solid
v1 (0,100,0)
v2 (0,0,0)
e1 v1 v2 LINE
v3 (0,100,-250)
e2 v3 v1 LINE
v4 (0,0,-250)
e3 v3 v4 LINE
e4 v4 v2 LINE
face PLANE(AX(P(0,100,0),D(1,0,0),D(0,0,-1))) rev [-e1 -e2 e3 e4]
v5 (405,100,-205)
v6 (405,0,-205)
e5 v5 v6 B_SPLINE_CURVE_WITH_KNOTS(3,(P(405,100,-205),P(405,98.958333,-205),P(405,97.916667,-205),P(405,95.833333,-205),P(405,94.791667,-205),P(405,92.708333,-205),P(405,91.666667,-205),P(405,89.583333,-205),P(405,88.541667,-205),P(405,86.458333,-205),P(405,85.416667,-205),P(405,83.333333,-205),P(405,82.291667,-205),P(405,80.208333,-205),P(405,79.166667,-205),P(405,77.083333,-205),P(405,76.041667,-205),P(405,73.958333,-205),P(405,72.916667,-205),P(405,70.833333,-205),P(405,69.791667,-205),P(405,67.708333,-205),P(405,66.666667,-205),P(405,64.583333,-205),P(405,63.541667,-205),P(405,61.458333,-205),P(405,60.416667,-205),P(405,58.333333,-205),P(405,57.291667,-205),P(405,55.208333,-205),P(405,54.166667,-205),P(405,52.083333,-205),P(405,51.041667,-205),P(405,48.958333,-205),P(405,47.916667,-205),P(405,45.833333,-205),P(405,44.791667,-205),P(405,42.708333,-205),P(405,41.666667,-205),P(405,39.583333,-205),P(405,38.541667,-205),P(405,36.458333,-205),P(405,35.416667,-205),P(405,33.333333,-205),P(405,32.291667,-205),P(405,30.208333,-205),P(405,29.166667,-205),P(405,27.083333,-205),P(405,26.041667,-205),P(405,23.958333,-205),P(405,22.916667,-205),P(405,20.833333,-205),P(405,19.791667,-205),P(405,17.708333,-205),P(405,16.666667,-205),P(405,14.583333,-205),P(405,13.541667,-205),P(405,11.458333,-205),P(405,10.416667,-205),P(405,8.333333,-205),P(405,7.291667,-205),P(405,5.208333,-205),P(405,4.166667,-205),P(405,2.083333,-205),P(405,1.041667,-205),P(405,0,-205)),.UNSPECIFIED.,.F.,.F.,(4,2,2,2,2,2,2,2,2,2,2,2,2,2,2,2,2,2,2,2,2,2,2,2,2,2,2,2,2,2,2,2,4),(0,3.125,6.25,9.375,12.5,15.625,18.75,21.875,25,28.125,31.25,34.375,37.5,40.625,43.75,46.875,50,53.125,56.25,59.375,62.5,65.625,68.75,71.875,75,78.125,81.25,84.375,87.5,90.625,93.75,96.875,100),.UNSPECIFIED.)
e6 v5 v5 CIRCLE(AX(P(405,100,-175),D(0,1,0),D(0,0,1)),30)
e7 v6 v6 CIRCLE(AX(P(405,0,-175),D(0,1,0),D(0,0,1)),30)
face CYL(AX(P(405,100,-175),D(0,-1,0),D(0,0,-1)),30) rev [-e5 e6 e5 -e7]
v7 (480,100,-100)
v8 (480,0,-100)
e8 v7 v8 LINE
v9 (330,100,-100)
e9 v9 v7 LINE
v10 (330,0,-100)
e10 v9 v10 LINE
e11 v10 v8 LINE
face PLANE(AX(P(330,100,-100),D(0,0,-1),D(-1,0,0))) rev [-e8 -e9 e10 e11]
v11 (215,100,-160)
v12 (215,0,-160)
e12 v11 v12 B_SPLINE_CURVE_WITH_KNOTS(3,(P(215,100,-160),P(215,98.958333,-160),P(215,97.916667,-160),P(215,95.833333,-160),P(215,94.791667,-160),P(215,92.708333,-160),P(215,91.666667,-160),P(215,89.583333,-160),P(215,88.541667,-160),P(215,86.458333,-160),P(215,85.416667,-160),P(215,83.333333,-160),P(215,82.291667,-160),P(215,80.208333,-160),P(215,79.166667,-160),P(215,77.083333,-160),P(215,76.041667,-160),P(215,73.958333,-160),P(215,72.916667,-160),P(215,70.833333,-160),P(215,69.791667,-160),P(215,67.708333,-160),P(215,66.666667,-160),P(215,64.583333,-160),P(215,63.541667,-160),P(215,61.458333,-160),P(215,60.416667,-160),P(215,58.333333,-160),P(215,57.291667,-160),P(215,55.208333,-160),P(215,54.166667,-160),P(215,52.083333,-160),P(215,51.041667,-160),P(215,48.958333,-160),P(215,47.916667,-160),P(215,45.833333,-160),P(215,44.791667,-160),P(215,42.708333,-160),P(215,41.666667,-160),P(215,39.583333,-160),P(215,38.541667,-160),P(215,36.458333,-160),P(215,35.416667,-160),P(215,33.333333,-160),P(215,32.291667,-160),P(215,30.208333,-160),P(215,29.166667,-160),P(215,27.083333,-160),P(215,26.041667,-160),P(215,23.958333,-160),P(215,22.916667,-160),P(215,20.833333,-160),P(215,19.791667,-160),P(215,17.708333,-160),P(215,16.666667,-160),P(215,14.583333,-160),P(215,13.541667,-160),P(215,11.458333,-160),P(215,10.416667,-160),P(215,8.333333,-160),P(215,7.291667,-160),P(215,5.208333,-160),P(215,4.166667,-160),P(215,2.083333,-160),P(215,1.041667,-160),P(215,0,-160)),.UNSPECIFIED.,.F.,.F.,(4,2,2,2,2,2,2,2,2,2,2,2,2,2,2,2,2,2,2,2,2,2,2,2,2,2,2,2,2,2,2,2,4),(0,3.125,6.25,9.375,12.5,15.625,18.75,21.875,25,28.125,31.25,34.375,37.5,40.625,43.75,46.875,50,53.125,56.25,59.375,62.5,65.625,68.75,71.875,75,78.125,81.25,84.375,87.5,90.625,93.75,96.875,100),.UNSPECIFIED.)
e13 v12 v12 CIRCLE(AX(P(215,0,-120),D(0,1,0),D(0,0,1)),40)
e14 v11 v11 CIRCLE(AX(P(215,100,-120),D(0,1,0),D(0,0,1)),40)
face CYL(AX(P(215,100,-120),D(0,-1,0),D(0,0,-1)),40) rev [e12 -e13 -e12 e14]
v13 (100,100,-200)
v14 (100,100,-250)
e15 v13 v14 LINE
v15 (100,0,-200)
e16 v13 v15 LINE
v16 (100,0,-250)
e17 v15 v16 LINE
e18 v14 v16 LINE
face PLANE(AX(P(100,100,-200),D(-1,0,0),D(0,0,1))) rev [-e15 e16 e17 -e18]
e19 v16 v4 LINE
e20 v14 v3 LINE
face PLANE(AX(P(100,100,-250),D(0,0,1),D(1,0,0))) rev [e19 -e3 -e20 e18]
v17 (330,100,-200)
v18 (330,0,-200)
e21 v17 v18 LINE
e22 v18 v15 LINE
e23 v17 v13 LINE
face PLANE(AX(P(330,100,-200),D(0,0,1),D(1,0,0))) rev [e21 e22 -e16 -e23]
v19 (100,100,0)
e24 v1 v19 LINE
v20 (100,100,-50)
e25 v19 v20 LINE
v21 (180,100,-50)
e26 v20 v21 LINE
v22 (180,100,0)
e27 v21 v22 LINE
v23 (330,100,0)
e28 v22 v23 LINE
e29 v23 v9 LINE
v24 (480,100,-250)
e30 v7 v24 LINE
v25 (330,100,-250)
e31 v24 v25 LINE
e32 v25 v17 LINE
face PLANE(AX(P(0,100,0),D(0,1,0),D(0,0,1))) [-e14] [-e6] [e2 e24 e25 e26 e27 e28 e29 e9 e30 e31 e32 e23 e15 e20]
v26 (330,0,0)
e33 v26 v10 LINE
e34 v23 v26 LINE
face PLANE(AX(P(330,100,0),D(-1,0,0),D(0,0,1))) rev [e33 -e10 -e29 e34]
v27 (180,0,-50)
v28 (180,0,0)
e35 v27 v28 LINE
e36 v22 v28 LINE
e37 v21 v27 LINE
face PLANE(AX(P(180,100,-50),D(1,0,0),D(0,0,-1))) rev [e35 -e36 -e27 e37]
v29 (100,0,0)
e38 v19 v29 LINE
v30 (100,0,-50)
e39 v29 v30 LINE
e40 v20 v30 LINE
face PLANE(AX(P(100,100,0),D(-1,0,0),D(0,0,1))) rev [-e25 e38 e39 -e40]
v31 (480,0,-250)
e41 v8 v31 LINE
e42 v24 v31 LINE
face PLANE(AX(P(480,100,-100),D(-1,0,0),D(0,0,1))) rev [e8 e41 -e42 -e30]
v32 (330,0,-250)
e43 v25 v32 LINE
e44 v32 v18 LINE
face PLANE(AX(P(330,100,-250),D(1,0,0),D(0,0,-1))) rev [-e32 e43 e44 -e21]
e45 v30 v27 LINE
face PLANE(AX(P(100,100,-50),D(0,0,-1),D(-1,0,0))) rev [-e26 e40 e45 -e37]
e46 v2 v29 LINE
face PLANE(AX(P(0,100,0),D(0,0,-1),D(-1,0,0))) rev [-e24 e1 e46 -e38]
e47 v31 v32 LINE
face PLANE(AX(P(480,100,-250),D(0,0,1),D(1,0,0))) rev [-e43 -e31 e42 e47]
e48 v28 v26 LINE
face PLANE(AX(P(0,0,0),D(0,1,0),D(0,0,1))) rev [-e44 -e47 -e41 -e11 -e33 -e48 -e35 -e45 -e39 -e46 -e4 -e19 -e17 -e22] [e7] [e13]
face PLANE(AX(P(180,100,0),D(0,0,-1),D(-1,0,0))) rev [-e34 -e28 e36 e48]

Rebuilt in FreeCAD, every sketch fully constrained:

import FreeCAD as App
import Part
import Sketcher
from FreeCAD import Vector


def add_polygon(sketch, points):
    """Adds a closed chain of lines whose ends are joined by coincident constraints."""
    first, n = sketch.GeometryCount, len(points)
    for a, b in zip(points, points[1:] + points[:1]):
        sketch.addGeometry(Part.LineSegment(App.Vector(*a, 0), App.Vector(*b, 0)), False)
    for i in range(n):
        sketch.addConstraint(Sketcher.Constraint("Coincident", first + i, 2, first + (i + 1) % n, 1))

doc = App.newDocument("Part")
body = doc.addObject("PartDesign::Body", "Body")

# Sketch on XZ plane
sketch1 = body.newObject("Sketcher::SketchObject", "Sketch")
sketch1.AttachmentSupport = (doc.getObject("XZ_Plane"), [""])
sketch1.MapMode = "FlatFace"
add_polygon(sketch1, [(0, 0), (100, 0), (100, -50), (180, -50), (180, 0), (330, 0), (330, -100), (480, -100), (480, -250), (330, -250), (330, -200), (100, -200), (100, -250), (0, -250)])  # lines 0-13
sketch1.addGeometry(Part.Circle(Vector(215, -120, 0), Vector(0, 0, 1), 40), False)  # 14
sketch1.addGeometry(Part.Circle(Vector(405, -175, 0), Vector(0, 0, 1), 30), False)  # 15
sketch1.addConstraint(Sketcher.Constraint("Horizontal", 0))
sketch1.addConstraint(Sketcher.Constraint("Vertical", 1))
sketch1.addConstraint(Sketcher.Constraint("Horizontal", 2))
sketch1.addConstraint(Sketcher.Constraint("Vertical", 3))
sketch1.addConstraint(Sketcher.Constraint("Horizontal", 4))
sketch1.addConstraint(Sketcher.Constraint("Vertical", 5))
sketch1.addConstraint(Sketcher.Constraint("Horizontal", 6))
sketch1.addConstraint(Sketcher.Constraint("Vertical", 7))
sketch1.addConstraint(Sketcher.Constraint("Horizontal", 8))
sketch1.addConstraint(Sketcher.Constraint("Vertical", 9))
sketch1.addConstraint(Sketcher.Constraint("Horizontal", 10))
sketch1.addConstraint(Sketcher.Constraint("Vertical", 11))
sketch1.addConstraint(Sketcher.Constraint("Horizontal", 12))
sketch1.addConstraint(Sketcher.Constraint("Vertical", 13))
sketch1.addConstraint(Sketcher.Constraint("Coincident", 13, 2, -1, 1))
sketch1.addConstraint(Sketcher.Constraint("PointOnObject", 3, 2, -1))
sketch1.addConstraint(Sketcher.Constraint("Horizontal", 8, 2, 11, 2))
sketch1.addConstraint(Sketcher.Constraint("Vertical", 5, 2, 8, 2))
sketch1.addConstraint(Sketcher.Constraint("Vertical", 1, 2, 10, 2))
sketch1.addConstraint(Sketcher.Constraint("Equal", 4, 6))
sketch1.addConstraint(Sketcher.Constraint("Equal", 12, 5))
sketch1.addConstraint(Sketcher.Constraint("Equal", 8, 7))
sketch1.addConstraint(Sketcher.Constraint("Equal", 3, 9))
sketch1.addConstraint(Sketcher.Constraint("Diameter", 14, 80.0))
sketch1.addConstraint(Sketcher.Constraint("Diameter", 15, 60.0))
sketch1.addConstraint(Sketcher.Constraint("DistanceX", 0, 1, 0, 2, 100.0))
sketch1.addConstraint(Sketcher.Constraint("DistanceX", 2, 1, 2, 2, 80.0))
sketch1.addConstraint(Sketcher.Constraint("DistanceX", 4, 1, 4, 2, 150.0))
sketch1.addConstraint(Sketcher.Constraint("DistanceY", 1, 2, 1, 1, 50.0))
sketch1.addConstraint(Sketcher.Constraint("DistanceX", -1, 1, 14, 3, 215.0))
sketch1.addConstraint(Sketcher.Constraint("DistanceY", 14, 3, -1, 1, 120.0))
sketch1.addConstraint(Sketcher.Constraint("DistanceX", -1, 1, 15, 3, 405.0))
sketch1.addConstraint(Sketcher.Constraint("DistanceY", 15, 3, -1, 1, 175.0))
pad1 = body.newObject("PartDesign::Pad", "Pad")
pad1.Profile = sketch1
pad1.Length = 100
pad1.Reversed = True

doc.recompute()
